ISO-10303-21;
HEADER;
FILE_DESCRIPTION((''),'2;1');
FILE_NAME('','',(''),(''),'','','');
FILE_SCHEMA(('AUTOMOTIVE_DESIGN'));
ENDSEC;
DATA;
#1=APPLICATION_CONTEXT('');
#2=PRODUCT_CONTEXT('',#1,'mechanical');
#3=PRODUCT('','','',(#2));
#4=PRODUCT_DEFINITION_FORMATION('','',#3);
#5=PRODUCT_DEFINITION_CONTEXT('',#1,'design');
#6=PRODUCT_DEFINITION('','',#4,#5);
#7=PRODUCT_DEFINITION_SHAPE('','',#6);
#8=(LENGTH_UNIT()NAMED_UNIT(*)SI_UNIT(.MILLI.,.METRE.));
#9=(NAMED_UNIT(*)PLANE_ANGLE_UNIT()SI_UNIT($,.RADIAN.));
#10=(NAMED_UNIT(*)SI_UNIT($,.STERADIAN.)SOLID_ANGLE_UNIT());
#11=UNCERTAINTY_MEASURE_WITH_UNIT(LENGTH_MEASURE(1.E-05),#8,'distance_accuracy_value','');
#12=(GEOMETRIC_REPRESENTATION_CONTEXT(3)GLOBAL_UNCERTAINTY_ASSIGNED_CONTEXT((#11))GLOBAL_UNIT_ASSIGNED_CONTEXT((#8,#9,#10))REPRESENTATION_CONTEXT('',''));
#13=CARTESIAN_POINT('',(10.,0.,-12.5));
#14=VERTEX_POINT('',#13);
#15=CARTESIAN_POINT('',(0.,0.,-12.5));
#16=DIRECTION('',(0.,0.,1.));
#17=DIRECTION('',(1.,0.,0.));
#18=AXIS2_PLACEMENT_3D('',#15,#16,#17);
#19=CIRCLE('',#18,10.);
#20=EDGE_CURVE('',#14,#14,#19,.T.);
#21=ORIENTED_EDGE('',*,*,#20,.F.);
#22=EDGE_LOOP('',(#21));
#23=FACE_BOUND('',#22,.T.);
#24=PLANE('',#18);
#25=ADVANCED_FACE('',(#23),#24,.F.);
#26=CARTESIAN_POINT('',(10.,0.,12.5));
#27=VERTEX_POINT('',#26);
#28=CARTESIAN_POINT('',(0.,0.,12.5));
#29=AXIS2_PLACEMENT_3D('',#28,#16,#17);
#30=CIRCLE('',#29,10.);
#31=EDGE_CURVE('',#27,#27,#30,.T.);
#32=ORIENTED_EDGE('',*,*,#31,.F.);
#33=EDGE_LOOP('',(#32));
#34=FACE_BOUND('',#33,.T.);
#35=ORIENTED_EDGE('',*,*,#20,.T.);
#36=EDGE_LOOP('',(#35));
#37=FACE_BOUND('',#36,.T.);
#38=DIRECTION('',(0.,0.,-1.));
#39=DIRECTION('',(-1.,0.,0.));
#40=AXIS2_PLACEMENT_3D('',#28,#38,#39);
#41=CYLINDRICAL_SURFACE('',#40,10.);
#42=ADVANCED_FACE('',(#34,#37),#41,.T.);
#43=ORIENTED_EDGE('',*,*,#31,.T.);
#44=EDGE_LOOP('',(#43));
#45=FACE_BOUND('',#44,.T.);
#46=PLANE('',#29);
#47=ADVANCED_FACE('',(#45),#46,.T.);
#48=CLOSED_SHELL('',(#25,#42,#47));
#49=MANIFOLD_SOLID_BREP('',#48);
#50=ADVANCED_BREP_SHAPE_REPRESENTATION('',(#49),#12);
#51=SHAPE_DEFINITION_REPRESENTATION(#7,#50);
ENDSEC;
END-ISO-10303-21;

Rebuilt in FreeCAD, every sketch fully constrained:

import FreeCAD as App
import Part
import Sketcher

V = App.Vector
Q = App.Units.Quantity

doc = App.newDocument("Part")
body = doc.addObject("PartDesign::Body", "Body")

# Sketch on XY plane
sketch1 = body.newObject("Sketcher::SketchObject", "Sketch")
sketch1.AttachmentSupport = (doc.getObject("XY_Plane"), [""])
sketch1.MapMode = "FlatFace"
sketch1.addGeometry(Part.Circle(V(0, 0, 0), V(0, 0, 1), 10), False)
sketch1.addConstraint([
    Sketcher.Constraint("Coincident", 0, 3, -1, 1),
    Sketcher.Constraint("Diameter", 0, Q("20 mm")),
])
pad1 = body.newObject("PartDesign::Pad", "Pad")
pad1.Profile = sketch1
pad1.Length = 25
pad1.Midplane = True

doc.recompute()
